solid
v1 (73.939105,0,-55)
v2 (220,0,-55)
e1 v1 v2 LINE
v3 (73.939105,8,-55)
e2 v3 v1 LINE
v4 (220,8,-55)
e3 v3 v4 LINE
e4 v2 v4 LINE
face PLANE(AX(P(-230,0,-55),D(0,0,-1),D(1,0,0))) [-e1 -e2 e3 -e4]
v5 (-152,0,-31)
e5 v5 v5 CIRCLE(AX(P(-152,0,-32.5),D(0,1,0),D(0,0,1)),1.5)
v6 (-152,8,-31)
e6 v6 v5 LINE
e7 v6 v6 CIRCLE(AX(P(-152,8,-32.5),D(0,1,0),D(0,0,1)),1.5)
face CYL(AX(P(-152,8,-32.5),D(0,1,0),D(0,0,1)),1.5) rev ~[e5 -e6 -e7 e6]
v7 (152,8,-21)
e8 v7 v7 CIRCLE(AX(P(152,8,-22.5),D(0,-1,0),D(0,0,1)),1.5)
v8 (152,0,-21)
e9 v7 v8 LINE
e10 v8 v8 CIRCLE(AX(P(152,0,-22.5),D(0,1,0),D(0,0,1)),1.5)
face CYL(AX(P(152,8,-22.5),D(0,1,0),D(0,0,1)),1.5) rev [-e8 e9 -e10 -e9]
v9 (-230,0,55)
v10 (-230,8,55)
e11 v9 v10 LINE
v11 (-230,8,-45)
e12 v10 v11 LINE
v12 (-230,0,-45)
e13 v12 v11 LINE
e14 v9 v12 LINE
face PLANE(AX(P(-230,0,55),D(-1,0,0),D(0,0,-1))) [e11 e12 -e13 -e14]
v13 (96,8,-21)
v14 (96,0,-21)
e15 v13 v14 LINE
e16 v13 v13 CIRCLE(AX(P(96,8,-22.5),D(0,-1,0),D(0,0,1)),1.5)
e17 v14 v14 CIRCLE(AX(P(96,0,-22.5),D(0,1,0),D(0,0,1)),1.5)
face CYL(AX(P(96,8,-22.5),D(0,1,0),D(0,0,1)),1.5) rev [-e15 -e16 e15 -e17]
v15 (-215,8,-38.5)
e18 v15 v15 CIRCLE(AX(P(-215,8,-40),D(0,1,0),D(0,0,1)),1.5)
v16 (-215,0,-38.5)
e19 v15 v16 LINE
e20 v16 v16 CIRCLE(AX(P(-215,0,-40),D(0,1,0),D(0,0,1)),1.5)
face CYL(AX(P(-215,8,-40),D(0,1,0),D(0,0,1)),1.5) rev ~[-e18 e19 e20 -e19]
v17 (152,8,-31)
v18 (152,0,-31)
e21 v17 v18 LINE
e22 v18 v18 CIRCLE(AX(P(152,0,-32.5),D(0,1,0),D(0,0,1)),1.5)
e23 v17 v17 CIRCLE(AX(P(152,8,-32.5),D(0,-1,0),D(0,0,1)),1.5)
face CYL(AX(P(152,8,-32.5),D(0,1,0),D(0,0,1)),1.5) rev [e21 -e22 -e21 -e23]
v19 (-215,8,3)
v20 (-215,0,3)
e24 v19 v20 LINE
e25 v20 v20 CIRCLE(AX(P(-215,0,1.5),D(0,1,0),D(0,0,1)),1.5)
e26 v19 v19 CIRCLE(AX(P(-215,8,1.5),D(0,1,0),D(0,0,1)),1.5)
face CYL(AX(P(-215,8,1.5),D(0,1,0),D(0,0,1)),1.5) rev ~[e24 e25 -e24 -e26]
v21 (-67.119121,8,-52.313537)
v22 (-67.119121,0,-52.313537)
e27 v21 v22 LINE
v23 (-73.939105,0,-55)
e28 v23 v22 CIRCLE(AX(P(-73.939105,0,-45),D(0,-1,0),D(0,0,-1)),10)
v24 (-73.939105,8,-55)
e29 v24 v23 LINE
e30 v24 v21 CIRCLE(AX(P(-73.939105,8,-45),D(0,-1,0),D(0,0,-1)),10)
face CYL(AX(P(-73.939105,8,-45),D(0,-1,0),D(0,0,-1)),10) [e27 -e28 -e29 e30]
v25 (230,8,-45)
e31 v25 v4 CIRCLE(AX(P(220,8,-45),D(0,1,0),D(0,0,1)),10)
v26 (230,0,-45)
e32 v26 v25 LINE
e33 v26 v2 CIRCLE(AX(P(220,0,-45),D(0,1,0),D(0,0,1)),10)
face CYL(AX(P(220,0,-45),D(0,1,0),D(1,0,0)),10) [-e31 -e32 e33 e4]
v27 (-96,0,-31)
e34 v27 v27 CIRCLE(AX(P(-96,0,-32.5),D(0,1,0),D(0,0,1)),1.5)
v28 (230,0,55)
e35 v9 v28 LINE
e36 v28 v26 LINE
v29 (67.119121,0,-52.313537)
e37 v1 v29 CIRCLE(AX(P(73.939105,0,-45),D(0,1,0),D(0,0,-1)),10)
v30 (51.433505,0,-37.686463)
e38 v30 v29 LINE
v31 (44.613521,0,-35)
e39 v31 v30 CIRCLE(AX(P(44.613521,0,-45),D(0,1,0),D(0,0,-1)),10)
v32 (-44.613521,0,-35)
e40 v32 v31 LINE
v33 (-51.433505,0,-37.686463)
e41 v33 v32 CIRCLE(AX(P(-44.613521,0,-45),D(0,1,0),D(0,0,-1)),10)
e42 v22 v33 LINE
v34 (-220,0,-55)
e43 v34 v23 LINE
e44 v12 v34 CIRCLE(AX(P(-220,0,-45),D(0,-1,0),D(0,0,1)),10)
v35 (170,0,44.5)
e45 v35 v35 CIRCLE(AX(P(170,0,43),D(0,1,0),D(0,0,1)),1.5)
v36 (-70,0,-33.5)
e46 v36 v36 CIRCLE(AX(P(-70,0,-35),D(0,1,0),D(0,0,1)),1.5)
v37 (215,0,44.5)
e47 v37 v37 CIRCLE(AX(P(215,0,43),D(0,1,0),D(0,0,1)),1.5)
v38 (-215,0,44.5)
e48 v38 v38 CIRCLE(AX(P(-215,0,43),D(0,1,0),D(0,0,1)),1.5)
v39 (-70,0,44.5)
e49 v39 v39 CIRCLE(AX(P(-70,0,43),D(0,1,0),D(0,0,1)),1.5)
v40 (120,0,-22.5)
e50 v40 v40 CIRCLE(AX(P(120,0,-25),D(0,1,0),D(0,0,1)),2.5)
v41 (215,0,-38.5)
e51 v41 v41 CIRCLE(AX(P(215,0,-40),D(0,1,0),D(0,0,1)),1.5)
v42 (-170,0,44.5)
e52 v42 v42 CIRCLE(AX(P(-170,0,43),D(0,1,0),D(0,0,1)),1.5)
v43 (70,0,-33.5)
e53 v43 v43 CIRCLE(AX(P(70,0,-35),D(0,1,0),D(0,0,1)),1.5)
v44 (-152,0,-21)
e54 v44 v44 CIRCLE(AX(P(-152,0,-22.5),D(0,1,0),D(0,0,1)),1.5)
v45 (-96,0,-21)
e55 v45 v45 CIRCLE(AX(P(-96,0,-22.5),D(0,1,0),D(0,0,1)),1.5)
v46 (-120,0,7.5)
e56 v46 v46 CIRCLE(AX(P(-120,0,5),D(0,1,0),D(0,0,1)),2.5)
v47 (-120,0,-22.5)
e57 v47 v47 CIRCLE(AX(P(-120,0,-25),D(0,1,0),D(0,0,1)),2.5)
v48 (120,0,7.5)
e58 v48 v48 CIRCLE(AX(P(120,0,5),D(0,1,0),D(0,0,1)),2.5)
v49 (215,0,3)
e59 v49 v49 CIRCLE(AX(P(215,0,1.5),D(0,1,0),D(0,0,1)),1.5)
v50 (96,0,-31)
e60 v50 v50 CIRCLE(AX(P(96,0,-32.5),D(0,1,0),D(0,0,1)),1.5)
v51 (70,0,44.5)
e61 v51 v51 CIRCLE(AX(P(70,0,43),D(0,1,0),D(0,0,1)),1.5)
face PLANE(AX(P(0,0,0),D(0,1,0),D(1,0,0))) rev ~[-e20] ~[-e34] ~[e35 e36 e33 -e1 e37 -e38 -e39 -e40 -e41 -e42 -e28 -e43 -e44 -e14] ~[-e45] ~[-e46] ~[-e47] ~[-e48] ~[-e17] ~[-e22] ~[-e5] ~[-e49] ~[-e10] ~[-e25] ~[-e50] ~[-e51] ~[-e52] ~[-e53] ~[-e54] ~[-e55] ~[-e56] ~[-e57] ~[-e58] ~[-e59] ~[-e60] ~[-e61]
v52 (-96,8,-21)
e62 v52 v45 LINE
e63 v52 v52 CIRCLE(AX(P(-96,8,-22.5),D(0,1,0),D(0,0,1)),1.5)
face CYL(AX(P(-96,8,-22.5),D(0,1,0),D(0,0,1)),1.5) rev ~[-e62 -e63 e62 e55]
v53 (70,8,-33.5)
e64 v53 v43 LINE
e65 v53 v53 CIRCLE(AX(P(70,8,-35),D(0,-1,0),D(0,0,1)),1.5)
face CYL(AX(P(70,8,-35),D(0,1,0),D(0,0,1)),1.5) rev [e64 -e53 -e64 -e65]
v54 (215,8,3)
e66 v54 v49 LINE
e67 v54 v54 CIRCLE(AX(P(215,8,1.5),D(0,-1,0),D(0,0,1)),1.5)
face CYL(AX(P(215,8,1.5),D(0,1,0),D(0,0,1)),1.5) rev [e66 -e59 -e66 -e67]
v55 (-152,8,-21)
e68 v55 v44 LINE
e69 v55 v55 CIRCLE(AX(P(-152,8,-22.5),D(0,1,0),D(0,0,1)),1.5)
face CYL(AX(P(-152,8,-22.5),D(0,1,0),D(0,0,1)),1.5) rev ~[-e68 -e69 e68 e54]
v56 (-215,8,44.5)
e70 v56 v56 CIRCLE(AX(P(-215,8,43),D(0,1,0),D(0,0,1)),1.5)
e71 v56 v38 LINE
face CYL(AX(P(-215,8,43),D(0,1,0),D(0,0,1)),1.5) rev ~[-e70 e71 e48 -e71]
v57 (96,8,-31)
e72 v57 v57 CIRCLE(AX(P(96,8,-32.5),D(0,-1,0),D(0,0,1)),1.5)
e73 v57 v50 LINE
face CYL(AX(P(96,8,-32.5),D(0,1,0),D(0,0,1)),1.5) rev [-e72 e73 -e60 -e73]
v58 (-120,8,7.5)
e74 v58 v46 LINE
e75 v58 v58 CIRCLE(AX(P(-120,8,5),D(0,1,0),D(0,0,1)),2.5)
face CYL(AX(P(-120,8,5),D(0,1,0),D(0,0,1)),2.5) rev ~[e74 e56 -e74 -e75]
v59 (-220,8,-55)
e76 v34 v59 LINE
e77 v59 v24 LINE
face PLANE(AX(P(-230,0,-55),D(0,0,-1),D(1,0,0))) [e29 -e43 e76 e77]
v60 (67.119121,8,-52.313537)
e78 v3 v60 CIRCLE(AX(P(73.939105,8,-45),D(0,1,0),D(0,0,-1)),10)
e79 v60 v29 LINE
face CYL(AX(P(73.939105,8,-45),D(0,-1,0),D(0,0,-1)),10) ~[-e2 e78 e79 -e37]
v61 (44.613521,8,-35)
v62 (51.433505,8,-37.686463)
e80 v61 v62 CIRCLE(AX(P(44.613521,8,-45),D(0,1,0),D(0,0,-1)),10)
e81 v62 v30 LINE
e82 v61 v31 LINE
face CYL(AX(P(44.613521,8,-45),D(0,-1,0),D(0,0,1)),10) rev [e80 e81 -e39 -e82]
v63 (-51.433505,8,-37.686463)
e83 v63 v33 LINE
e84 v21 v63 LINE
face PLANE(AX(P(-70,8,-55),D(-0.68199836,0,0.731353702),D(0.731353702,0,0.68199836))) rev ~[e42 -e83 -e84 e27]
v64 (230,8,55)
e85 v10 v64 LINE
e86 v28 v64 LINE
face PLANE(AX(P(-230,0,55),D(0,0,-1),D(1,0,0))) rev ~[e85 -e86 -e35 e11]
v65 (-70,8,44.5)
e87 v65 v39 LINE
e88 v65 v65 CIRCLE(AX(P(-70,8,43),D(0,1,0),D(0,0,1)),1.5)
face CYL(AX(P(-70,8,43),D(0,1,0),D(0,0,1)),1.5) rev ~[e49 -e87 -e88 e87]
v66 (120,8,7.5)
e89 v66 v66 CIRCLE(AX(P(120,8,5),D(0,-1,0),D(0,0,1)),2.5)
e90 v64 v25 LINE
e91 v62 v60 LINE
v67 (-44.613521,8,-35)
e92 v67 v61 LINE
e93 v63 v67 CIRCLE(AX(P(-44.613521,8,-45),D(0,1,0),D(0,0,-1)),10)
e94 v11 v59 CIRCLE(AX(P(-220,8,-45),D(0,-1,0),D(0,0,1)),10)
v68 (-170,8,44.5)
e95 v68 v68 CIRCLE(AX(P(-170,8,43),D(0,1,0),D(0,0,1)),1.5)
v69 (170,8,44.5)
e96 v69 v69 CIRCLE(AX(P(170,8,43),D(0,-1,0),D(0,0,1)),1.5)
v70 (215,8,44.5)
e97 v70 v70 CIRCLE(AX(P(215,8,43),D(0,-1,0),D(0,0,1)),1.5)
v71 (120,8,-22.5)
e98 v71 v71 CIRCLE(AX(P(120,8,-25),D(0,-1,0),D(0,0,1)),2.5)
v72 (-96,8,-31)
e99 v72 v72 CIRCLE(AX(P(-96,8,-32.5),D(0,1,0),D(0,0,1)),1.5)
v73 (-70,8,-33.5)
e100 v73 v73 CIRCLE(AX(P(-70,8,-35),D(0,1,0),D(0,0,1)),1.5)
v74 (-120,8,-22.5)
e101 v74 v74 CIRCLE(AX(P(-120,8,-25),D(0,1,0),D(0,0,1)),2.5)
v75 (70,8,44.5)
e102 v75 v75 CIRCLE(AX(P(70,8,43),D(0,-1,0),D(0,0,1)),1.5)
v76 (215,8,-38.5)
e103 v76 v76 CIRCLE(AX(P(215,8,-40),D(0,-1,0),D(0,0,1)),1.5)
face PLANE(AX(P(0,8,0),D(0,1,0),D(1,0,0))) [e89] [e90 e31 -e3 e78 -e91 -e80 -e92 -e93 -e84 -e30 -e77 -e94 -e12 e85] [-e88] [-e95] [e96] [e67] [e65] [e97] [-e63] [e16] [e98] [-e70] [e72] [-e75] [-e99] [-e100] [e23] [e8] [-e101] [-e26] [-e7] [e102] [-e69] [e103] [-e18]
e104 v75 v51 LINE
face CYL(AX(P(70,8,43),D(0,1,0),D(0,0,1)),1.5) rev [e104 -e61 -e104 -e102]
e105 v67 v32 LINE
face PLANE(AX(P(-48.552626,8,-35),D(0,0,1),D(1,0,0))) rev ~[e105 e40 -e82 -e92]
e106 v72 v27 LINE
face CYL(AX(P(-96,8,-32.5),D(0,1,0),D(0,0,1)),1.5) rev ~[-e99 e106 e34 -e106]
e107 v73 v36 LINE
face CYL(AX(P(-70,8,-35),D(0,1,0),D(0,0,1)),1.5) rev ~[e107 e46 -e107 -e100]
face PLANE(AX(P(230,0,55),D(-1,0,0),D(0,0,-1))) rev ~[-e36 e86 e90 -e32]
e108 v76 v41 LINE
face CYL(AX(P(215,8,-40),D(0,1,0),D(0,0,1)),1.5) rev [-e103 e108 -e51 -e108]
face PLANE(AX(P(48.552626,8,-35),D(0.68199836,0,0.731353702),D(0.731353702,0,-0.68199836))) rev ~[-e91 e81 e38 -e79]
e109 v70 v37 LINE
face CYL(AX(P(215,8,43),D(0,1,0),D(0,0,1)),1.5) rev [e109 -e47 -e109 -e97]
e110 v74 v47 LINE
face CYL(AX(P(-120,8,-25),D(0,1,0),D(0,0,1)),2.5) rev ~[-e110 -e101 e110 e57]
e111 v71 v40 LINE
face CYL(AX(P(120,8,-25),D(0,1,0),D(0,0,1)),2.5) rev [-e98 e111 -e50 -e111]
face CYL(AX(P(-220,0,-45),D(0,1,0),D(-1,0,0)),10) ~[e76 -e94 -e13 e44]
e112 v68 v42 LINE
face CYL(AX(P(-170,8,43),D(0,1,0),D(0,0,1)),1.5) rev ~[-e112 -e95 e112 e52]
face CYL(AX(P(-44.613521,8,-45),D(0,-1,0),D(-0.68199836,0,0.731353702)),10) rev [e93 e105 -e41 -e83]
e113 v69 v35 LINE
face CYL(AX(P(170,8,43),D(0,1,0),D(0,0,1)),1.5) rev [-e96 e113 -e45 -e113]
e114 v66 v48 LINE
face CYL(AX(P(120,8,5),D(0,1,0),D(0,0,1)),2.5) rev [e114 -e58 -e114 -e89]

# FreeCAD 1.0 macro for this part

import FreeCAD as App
import Part
import Sketcher
from FreeCAD import Vector
Q = App.Units.Quantity


def edges_at(feature, points):
    """Names of the edges that pass closest to the given points."""
    edges = feature.Shape.Edges
    near = lambda p: min(range(len(edges)), key=lambda i: edges[i].distToShape(Part.Vertex(*p))[0])
    return sorted({f"Edge{near(p) + 1}" for p in points})

doc = App.newDocument("Part")
body = doc.addObject("PartDesign::Body", "Body")

# Sketch on XZ plane
sketch1 = doc.addObject("Sketcher::SketchObject", "Sketch")
body.addObject(sketch1)
sketch1.AttachmentSupport = (doc.XZ_Plane, [""])
sketch1.MapMode = "FlatFace"
sketch1.addGeometry([
    Part.LineSegment(Vector(-230, -55, 0), Vector(-230, 55, 0)),
    Part.LineSegment(Vector(-230, 55, 0), Vector(230, 55, 0)),
    Part.LineSegment(Vector(230, 55, 0), Vector(230, -55, 0)),
    Part.LineSegment(Vector(230, -55, 0), Vector(-230, -55, 0)),
], False)
sketch1.addConstraint([
    Sketcher.Constraint("Coincident", 0, 2, 1, 1),
    Sketcher.Constraint("Coincident", 1, 2, 2, 1),
    Sketcher.Constraint("Coincident", 2, 2, 3, 1),
    Sketcher.Constraint("Coincident", 3, 2, 0, 1),
    Sketcher.Constraint("Vertical", 0),
    Sketcher.Constraint("Horizontal", 1),
    Sketcher.Constraint("Vertical", 2),
    Sketcher.Constraint("Horizontal", 3),
    Sketcher.Constraint("Symmetric", 0, 2, 2, 2, -1, 1),
    Sketcher.Constraint("DistanceX", 1, 1, 1, 2, Q("460 mm")),
    Sketcher.Constraint("DistanceY", 0, 1, 0, 2, Q("110 mm")),
])
pad1 = doc.addObject("PartDesign::Pad", "Pad")
body.addObject(pad1)
pad1.Profile = sketch1
pad1.Length = 8
pad1.Reversed = True

# Sketch on XZ plane
sketch2 = doc.addObject("Sketcher::SketchObject", "Sketch001")
body.addObject(sketch2)
sketch2.AttachmentSupport = (doc.XZ_Plane, [""])
sketch2.MapMode = "FlatFace"
sketch2.AttachmentOffset = App.Placement(Vector(0, 0, -8), App.Rotation())
sketch2.addGeometry([
    Part.Circle(Vector(-70, -35, 0), Vector(0, 0, 1), 1.5),  # 0
    Part.Circle(Vector(-70, 43, 0), Vector(0, 0, 1), 1.5),  # 1
    Part.Circle(Vector(-215, 43, 0), Vector(0, 0, 1), 1.5),  # 2
    Part.Circle(Vector(-215, -40, 0), Vector(0, 0, 1), 1.5),  # 3
    Part.Circle(Vector(-170, 43, 0), Vector(0, 0, 1), 1.5),  # 4
    Part.Circle(Vector(-215, 1.5, 0), Vector(0, 0, 1), 1.5),  # 5
], False)
sketch2.addConstraint([
    Sketcher.Constraint("Equal", 0, 1),
    Sketcher.Constraint("Equal", 1, 2),
    Sketcher.Constraint("Equal", 2, 3),
    Sketcher.Constraint("Equal", 3, 4),
    Sketcher.Constraint("Equal", 4, 5),
    Sketcher.Constraint("Horizontal", 1, 3, 2, 3),
    Sketcher.Constraint("Horizontal", 2, 3, 4, 3),
    Sketcher.Constraint("Vertical", 0, 3, 1, 3),
    Sketcher.Constraint("Vertical", 2, 3, 3, 3),
    Sketcher.Constraint("Vertical", 3, 3, 5, 3),
    Sketcher.Constraint("Diameter", 0, Q("3 mm")),
    Sketcher.Constraint("DistanceX", 0, 3, -1, 1, Q("70 mm")),
    Sketcher.Constraint("DistanceY", 0, 3, -1, 1, Q("35 mm")),
    Sketcher.Constraint("DistanceY", -1, 1, 1, 3, Q("43 mm")),
    Sketcher.Constraint("DistanceX", 2, 3, -1, 1, Q("215 mm")),
    Sketcher.Constraint("DistanceY", 3, 3, -1, 1, Q("40 mm")),
    Sketcher.Constraint("DistanceX", 4, 3, -1, 1, Q("170 mm")),
    Sketcher.Constraint("DistanceY", -1, 1, 5, 3, Q("1.5 mm")),
])
pocket1 = doc.addObject("PartDesign::Pocket", "Pocket")
body.addObject(pocket1)
pocket1.Profile = sketch2
pocket1.Type = "ThroughAll"
pocket1.Reversed = True

# Sketch on XZ plane
sketch3 = doc.addObject("Sketcher::SketchObject", "Sketch002")
body.addObject(sketch3)
sketch3.AttachmentSupport = (doc.XZ_Plane, [""])
sketch3.MapMode = "FlatFace"
sketch3.AttachmentOffset = App.Placement(Vector(0, 0, -8), App.Rotation())
sketch3.addGeometry([
    Part.Circle(Vector(-120, -25, 0), Vector(0, 0, 1), 2.5),  # 0
    Part.Circle(Vector(-120, 5, 0), Vector(0, 0, 1), 2.5),  # 1
    Part.Circle(Vector(-152, -32.5, 0), Vector(0, 0, 1), 1.5),  # 2
    Part.Circle(Vector(-152, -22.5, 0), Vector(0, 0, 1), 1.5),  # 3
    Part.Circle(Vector(-96, -32.5, 0), Vector(0, 0, 1), 1.5),  # 4
    Part.Circle(Vector(-96, -22.5, 0), Vector(0, 0, 1), 1.5),  # 5
    Part.LineSegment(Vector(-70, -55, 0), Vector(-48.6, -35, 0)),  # 6
    Part.LineSegment(Vector(-48.6, -35, 0), Vector(48.6, -35, 0)),  # 7
    Part.LineSegment(Vector(48.6, -35, 0), Vector(70, -55, 0)),  # 8
    Part.LineSegment(Vector(70, -55, 0), Vector(-70, -55, 0)),  # 9
], False)
sketch3.addConstraint([
    Sketcher.Constraint("Coincident", 6, 2, 7, 1),
    Sketcher.Constraint("Coincident", 7, 2, 8, 1),
    Sketcher.Constraint("Coincident", 8, 2, 9, 1),
    Sketcher.Constraint("Coincident", 9, 2, 6, 1),
    Sketcher.Constraint("Horizontal", 7),
    Sketcher.Constraint("Horizontal", 9),
    Sketcher.Constraint("Equal", 0, 1),
    Sketcher.Constraint("Equal", 2, 3),
    Sketcher.Constraint("Equal", 3, 4),
    Sketcher.Constraint("Equal", 4, 5),
    Sketcher.Constraint("Horizontal", 2, 3, 4, 3),
    Sketcher.Constraint("Horizontal", 3, 3, 5, 3),
    Sketcher.Constraint("Vertical", 0, 3, 1, 3),
    Sketcher.Constraint("Vertical", 2, 3, 3, 3),
    Sketcher.Constraint("Vertical", 4, 3, 5, 3),
    Sketcher.Constraint("Equal", 6, 8),
    Sketcher.Constraint("Diameter", 0, Q("5 mm")),
    Sketcher.Constraint("Diameter", 2, Q("3 mm")),
    Sketcher.Constraint("DistanceX", 9, 2, 9, 1, Q("140 mm")),
    Sketcher.Constraint("Angle", 6, Q("43 deg")),
    Sketcher.Constraint("DistanceX", 0, 3, -1, 1, Q("120 mm")),
    Sketcher.Constraint("DistanceY", 0, 3, -1, 1, Q("25 mm")),
    Sketcher.Constraint("DistanceY", -1, 1, 1, 3, Q("5 mm")),
    Sketcher.Constraint("DistanceX", 2, 3, -1, 1, Q("152 mm")),
    Sketcher.Constraint("DistanceX", 4, 3, -1, 1, Q("96 mm")),
    Sketcher.Constraint("DistanceY", 6, 2, -1, 1, Q("35 mm")),
    Sketcher.Constraint("DistanceX", -1, 1, 8, 2, Q("70 mm")),
    Sketcher.Constraint("DistanceY", 8, 2, -1, 1, Q("55 mm")),
    Sketcher.Constraint("DistanceY", 2, 3, 3, 3, Q("10 mm")),
    Sketcher.Constraint("DistanceY", 2, 3, -1, 1, Q("32.5 mm")),
])
pocket2 = doc.addObject("PartDesign::Pocket", "Pocket001")
body.addObject(pocket2)
pocket2.Profile = sketch3
pocket2.Type = "ThroughAll"
pocket2.Reversed = True
doc.recompute()

mirrored = doc.addObject("PartDesign::Mirrored", "Mirrored")
body.addObject(mirrored)
mirrored.Originals = [pocket1, pocket2]
mirrored.MirrorPlane = (doc.YZ_Plane, [""])
body.Tip = mirrored
doc.recompute()

fillet = doc.addObject("PartDesign::Fillet", "Fillet")
body.addObject(fillet)
fillet.Base = (mirrored, edges_at(mirrored, [
    (-70, 4, -55),
    (70, 4, -55),
    (48.553, 4, -35),
    (-48.553, 4, -35),
    (-230, 4, -55),
    (230, 4, -55),
]))
fillet.Radius = 10

doc.recompute()
